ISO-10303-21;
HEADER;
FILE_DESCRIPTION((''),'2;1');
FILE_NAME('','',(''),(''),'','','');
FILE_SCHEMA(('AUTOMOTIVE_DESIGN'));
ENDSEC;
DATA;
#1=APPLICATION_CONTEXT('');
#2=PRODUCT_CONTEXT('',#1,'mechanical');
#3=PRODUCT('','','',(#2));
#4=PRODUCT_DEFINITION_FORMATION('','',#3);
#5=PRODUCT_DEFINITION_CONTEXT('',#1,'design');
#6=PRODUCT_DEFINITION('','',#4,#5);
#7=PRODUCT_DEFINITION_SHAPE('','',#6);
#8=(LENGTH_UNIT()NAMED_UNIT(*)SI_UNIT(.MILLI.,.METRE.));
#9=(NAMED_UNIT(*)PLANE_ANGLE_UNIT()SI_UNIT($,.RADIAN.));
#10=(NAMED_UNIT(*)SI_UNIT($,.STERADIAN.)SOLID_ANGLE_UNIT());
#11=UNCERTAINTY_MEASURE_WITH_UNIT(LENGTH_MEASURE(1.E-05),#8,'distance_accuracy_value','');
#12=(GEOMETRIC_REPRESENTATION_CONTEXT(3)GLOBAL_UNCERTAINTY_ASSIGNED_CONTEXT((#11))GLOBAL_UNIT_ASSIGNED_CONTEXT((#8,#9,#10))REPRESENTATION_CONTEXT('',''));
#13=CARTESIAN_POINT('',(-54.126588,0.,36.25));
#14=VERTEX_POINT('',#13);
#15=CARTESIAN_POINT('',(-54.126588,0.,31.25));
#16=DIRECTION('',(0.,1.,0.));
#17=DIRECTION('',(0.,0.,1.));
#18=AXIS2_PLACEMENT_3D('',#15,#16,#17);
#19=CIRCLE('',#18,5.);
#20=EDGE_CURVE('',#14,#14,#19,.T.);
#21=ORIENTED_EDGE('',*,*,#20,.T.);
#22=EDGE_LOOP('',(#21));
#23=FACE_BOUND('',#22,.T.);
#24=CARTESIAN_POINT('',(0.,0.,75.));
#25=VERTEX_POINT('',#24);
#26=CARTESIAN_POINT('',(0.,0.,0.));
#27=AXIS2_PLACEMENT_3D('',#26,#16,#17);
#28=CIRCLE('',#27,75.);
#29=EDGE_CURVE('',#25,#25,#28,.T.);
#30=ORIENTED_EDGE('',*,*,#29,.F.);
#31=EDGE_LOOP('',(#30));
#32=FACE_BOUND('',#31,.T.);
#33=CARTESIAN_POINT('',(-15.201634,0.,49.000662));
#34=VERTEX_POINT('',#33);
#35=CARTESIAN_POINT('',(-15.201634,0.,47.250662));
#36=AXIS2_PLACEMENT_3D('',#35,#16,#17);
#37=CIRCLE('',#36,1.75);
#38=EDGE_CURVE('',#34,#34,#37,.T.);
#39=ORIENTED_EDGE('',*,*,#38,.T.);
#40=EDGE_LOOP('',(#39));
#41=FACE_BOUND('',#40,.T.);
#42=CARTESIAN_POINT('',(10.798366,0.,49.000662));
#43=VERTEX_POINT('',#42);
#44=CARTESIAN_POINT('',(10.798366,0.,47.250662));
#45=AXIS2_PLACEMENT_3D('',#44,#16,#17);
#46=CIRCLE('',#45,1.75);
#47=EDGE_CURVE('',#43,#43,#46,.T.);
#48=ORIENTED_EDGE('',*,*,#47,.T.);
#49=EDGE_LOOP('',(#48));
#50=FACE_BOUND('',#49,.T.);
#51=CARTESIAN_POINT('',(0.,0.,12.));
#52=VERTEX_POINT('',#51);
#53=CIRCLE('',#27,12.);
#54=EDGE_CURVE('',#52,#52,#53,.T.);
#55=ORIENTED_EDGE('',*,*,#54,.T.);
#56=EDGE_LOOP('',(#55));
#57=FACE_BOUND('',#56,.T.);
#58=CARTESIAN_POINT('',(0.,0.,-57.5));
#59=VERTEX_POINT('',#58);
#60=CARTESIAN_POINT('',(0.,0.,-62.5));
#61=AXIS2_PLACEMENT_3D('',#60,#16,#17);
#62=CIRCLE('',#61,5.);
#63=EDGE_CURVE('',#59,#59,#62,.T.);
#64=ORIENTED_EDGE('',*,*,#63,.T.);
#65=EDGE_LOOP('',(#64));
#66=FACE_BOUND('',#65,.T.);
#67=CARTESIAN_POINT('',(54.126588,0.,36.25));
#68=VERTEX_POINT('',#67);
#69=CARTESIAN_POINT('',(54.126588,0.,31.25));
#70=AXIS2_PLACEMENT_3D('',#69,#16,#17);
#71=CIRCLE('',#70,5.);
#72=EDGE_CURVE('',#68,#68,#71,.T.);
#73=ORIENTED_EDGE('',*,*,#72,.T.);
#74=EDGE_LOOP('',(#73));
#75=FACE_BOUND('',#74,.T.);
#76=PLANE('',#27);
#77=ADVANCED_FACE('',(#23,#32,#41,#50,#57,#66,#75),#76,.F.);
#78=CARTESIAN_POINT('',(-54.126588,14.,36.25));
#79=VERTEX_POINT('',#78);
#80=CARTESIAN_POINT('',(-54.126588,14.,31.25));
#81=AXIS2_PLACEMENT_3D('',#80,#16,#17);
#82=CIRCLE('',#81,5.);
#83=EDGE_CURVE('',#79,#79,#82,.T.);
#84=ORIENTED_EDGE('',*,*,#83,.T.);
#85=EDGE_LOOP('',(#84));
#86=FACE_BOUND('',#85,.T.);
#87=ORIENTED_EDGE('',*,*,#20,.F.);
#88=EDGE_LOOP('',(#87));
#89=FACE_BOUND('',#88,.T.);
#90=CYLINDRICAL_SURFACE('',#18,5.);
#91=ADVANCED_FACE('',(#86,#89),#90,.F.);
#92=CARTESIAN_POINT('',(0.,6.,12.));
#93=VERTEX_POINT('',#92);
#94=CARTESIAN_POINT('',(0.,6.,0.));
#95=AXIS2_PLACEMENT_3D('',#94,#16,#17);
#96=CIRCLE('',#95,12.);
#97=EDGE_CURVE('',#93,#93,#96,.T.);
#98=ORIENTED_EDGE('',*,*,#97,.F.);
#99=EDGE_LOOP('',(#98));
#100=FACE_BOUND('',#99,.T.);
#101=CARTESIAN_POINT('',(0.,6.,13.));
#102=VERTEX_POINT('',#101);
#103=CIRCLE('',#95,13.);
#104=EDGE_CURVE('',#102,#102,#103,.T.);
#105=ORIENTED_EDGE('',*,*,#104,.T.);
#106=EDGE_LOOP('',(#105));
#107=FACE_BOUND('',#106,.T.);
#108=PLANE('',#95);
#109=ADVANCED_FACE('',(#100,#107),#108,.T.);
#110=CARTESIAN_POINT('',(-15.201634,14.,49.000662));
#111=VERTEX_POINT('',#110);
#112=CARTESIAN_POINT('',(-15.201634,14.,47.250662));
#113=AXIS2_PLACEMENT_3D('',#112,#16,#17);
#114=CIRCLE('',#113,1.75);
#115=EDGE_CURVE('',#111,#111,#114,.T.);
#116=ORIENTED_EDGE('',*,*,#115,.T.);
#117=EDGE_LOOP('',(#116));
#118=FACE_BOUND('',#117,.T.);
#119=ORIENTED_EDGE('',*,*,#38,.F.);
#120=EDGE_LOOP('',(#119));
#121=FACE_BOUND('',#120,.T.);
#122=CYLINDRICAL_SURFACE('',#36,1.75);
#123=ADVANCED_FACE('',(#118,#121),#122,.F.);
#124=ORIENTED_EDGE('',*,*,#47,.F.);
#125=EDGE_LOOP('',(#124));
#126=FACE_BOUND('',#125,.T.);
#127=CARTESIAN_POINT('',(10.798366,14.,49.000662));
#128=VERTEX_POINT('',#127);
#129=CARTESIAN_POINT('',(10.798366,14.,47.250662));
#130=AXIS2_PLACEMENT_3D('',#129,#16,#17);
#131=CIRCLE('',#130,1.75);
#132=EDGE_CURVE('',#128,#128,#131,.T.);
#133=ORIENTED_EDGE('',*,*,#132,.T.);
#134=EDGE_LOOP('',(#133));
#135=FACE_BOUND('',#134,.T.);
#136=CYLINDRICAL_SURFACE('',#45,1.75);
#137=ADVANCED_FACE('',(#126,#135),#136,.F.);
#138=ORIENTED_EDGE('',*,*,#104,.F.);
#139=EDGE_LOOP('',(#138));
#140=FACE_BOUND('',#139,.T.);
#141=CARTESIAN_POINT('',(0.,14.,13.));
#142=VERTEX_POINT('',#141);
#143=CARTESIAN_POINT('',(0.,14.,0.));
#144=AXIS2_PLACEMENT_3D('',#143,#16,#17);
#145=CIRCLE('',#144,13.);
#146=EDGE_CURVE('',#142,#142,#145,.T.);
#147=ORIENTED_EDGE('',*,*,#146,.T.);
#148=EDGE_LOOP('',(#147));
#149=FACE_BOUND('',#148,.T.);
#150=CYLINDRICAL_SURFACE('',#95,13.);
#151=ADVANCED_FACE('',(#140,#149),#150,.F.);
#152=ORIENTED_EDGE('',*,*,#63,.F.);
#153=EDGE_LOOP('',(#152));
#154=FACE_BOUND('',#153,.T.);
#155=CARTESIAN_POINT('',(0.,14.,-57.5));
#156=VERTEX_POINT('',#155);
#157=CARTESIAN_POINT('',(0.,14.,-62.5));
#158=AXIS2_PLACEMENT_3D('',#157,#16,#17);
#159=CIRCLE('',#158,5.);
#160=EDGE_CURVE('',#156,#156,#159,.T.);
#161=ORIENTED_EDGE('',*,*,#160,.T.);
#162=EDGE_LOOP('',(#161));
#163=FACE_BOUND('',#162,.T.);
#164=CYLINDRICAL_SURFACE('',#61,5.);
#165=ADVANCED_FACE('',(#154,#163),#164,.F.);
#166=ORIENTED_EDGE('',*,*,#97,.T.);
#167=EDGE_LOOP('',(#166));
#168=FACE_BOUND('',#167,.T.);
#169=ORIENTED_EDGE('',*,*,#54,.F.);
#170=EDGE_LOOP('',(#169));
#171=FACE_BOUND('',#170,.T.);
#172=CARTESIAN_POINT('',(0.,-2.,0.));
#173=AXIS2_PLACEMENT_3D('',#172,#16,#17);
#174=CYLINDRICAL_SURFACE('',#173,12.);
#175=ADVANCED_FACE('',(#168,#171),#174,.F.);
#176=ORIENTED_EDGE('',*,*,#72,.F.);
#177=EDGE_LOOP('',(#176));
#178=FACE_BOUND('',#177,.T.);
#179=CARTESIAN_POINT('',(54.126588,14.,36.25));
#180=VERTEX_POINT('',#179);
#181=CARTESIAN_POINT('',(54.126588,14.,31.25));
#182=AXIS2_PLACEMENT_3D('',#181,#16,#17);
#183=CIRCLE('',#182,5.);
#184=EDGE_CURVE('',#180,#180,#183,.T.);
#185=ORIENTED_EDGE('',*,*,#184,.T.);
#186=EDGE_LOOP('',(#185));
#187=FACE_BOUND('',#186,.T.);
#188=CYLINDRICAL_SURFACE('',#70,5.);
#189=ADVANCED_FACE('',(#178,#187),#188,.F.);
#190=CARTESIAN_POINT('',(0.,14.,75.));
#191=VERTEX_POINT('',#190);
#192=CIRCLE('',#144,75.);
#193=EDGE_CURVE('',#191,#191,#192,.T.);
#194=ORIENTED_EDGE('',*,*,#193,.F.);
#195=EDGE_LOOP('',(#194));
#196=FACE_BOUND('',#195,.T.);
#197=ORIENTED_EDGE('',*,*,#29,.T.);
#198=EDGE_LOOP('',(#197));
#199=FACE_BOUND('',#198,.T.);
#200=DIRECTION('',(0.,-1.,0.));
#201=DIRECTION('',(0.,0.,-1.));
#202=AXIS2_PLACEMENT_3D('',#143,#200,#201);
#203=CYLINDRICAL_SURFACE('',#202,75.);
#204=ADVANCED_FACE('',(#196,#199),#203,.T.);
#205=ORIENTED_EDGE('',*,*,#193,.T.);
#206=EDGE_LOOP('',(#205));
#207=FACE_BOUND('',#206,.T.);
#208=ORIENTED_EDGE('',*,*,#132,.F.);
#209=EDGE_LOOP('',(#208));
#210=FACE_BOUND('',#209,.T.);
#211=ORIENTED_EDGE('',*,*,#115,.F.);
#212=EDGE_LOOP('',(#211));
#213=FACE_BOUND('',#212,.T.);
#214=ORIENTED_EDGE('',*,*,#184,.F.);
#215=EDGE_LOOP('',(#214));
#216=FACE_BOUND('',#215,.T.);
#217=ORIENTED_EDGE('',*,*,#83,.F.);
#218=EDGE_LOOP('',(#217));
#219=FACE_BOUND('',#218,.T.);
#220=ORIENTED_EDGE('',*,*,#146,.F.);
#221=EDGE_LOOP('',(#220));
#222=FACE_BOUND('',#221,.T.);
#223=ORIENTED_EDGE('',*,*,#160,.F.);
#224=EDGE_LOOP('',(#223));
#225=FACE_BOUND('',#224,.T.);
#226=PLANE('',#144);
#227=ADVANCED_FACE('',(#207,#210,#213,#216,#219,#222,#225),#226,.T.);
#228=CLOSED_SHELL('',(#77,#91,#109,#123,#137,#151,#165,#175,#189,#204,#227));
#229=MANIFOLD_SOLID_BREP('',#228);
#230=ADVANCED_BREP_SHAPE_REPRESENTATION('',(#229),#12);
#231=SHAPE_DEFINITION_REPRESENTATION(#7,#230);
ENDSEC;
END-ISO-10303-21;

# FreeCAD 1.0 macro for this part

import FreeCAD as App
import Part
import Sketcher

V = App.Vector

doc = App.newDocument("Part")
body = doc.addObject("PartDesign::Body", "Body")

# Sketch on XZ plane
sketch1 = body.newObject("Sketcher::SketchObject", "Sketch")
sketch1.AttachmentSupport = (doc.getObject("XZ_Plane"), [""])
sketch1.MapMode = "FlatFace"
sketch1.addGeometry(Part.Circle(V(0, 0, 0), V(0, 0, 1), 75), False)
sketch1.addConstraint([
    Sketcher.Constraint("Coincident", 0, 3, -1, 1),
    Sketcher.Constraint("Diameter", 0, 150.0),
])
pad1 = body.newObject("PartDesign::Pad", "Pad")
pad1.Profile = sketch1
pad1.Length = 14
pad1.Reversed = True

# Sketch on XZ plane
sketch2 = body.newObject("Sketcher::SketchObject", "Sketch001")
sketch2.AttachmentSupport = (doc.getObject("XZ_Plane"), [""])
sketch2.MapMode = "FlatFace"
sketch2.AttachmentOffset = App.Placement(V(0, 0, -14), App.Rotation())
sketch2.addGeometry(Part.Circle(V(0, 0, 0), V(0, 0, 1), 13), False)
sketch2.addConstraint([
    Sketcher.Constraint("Coincident", 0, 3, -1, 1),
    Sketcher.Constraint("Diameter", 0, 26.0),
])
pocket1 = body.newObject("PartDesign::Pocket", "Pocket")
pocket1.Profile = sketch2
pocket1.Length = 8
pocket1.Reversed = True

# Sketch on XZ plane
sketch3 = body.newObject("Sketcher::SketchObject", "Sketch002")
sketch3.AttachmentSupport = (doc.getObject("XZ_Plane"), [""])
sketch3.MapMode = "FlatFace"
sketch3.AttachmentOffset = App.Placement(V(0, 0, -6), App.Rotation())
sketch3.addGeometry(Part.Circle(V(0, 0, 0), V(0, 0, 1), 12), False)
sketch3.addConstraint([
    Sketcher.Constraint("Coincident", 0, 3, -1, 1),
    Sketcher.Constraint("Diameter", 0, 24.0),
])
pocket2 = body.newObject("PartDesign::Pocket", "Pocket001")
pocket2.Profile = sketch3
pocket2.Length = 8
pocket2.Reversed = True

# Sketch on XZ plane
sketch4 = body.newObject("Sketcher::SketchObject", "Sketch003")
sketch4.AttachmentSupport = (doc.getObject("XZ_Plane"), [""])
sketch4.MapMode = "FlatFace"
sketch4.AttachmentOffset = App.Placement(V(0, 0, -14), App.Rotation())
sketch4.addGeometry([
    Part.Circle(V(0, -62.5, 0), V(0, 0, 1), 5),
    Part.Circle(V(-54.126588, 31.25, 0), V(0, 0, 1), 5),
    Part.Circle(V(54.126588, 31.25, 0), V(0, 0, 1), 5),
], False)
sketch4.addConstraint([
    Sketcher.Constraint("Equal", 0, 1),
    Sketcher.Constraint("Equal", 1, 2),
    Sketcher.Constraint("Symmetric", 1, 3, 2, 3, -2),
    Sketcher.Constraint("PointOnObject", 0, 3, -2),
    Sketcher.Constraint("Diameter", 0, 10.0),
    Sketcher.Constraint("DistanceY", 0, 3, -1, 1, 62.5),
    Sketcher.Constraint("DistanceY", -1, 1, 1, 3, 31.25),
    Sketcher.Constraint("DistanceX", 1, 3, -1, 1, 54.126588),
])
pocket3 = body.newObject("PartDesign::Pocket", "Pocket002")
pocket3.Profile = sketch4
pocket3.Type = "ThroughAll"
pocket3.Reversed = True

# Sketch on XZ plane
sketch5 = body.newObject("Sketcher::SketchObject", "Sketch004")
sketch5.AttachmentSupport = (doc.getObject("XZ_Plane"), [""])
sketch5.MapMode = "FlatFace"
sketch5.AttachmentOffset = App.Placement(V(0, 0, -14), App.Rotation())
sketch5.addGeometry([
    Part.Circle(V(-15.201634, 47.250662, 0), V(0, 0, 1), 1.75),
    Part.Circle(V(10.798366, 47.250662, 0), V(0, 0, 1), 1.75),
], False)
sketch5.addConstraint([
    Sketcher.Constraint("Equal", 0, 1),
    Sketcher.Constraint("Horizontal", 0, 3, 1, 3),
    Sketcher.Constraint("Diameter", 0, 3.5),
    Sketcher.Constraint("DistanceX", 0, 3, 1, 3, 26.0),
    Sketcher.Constraint("DistanceY", -1, 1, 0, 3, 47.250662),
    Sketcher.Constraint("DistanceX", 0, 3, -1, 1, 15.201634),
])
pocket4 = body.newObject("PartDesign::Pocket", "Pocket003")
pocket4.Profile = sketch5
pocket4.Type = "ThroughAll"
pocket4.Reversed = True

doc.recompute()
